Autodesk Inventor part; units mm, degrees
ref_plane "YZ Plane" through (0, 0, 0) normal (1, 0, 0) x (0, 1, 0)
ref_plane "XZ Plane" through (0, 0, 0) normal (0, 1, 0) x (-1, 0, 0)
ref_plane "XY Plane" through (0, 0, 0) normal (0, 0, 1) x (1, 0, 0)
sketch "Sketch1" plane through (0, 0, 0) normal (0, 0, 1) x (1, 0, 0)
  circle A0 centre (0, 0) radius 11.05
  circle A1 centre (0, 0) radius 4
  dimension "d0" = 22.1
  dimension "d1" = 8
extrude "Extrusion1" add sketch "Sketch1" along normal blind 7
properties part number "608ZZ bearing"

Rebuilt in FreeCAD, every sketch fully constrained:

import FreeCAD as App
import Part
import Sketcher
from FreeCAD import Vector

doc = App.newDocument("Part")
params = doc.addObject("Spreadsheet::Sheet", "Params")
for row, (alias, value) in enumerate([
    ("sketch1_diameter", "8 mm"),
    ("sketch1_diameter2", "22.1 mm"),
    ("pad1_length", "7 mm"),
], start=1):
    params.set(f"A{row}", alias)
    params.set(f"B{row}", "=" + value)
    params.setAlias(f"B{row}", alias)

body = doc.addObject("PartDesign::Body", "Body")

sketch1 = body.newObject("Sketcher::SketchObject", "Sketch")
sketch1.AttachmentSupport = (doc.getObject("XY_Plane"), [""])
sketch1.MapMode = "FlatFace"
sketch1.addGeometry(Part.Circle(Vector(0, 0, 0), Vector(0, 0, 1), 11.1), False)
sketch1.addGeometry(Part.Circle(Vector(0, 0, 0), Vector(0, 0, 1), 4), False)
sketch1.addConstraint(Sketcher.Constraint("Coincident", 0, 3, -1, 1))
sketch1.addConstraint(Sketcher.Constraint("Coincident", 1, 3, -1, 1))
sketch1.addConstraint(Sketcher.Constraint("Diameter", 1, 8.0))
sketch1.addConstraint(Sketcher.Constraint("Diameter", 0, 22.1))
sketch1.setExpression("Constraints[2]", "Params.sketch1_diameter")
sketch1.setExpression("Constraints[3]", "Params.sketch1_diameter2")
pad1 = body.newObject("PartDesign::Pad", "Pad")
pad1.Profile = sketch1
pad1.setExpression("Length", "Params.pad1_length")

doc.recompute()
